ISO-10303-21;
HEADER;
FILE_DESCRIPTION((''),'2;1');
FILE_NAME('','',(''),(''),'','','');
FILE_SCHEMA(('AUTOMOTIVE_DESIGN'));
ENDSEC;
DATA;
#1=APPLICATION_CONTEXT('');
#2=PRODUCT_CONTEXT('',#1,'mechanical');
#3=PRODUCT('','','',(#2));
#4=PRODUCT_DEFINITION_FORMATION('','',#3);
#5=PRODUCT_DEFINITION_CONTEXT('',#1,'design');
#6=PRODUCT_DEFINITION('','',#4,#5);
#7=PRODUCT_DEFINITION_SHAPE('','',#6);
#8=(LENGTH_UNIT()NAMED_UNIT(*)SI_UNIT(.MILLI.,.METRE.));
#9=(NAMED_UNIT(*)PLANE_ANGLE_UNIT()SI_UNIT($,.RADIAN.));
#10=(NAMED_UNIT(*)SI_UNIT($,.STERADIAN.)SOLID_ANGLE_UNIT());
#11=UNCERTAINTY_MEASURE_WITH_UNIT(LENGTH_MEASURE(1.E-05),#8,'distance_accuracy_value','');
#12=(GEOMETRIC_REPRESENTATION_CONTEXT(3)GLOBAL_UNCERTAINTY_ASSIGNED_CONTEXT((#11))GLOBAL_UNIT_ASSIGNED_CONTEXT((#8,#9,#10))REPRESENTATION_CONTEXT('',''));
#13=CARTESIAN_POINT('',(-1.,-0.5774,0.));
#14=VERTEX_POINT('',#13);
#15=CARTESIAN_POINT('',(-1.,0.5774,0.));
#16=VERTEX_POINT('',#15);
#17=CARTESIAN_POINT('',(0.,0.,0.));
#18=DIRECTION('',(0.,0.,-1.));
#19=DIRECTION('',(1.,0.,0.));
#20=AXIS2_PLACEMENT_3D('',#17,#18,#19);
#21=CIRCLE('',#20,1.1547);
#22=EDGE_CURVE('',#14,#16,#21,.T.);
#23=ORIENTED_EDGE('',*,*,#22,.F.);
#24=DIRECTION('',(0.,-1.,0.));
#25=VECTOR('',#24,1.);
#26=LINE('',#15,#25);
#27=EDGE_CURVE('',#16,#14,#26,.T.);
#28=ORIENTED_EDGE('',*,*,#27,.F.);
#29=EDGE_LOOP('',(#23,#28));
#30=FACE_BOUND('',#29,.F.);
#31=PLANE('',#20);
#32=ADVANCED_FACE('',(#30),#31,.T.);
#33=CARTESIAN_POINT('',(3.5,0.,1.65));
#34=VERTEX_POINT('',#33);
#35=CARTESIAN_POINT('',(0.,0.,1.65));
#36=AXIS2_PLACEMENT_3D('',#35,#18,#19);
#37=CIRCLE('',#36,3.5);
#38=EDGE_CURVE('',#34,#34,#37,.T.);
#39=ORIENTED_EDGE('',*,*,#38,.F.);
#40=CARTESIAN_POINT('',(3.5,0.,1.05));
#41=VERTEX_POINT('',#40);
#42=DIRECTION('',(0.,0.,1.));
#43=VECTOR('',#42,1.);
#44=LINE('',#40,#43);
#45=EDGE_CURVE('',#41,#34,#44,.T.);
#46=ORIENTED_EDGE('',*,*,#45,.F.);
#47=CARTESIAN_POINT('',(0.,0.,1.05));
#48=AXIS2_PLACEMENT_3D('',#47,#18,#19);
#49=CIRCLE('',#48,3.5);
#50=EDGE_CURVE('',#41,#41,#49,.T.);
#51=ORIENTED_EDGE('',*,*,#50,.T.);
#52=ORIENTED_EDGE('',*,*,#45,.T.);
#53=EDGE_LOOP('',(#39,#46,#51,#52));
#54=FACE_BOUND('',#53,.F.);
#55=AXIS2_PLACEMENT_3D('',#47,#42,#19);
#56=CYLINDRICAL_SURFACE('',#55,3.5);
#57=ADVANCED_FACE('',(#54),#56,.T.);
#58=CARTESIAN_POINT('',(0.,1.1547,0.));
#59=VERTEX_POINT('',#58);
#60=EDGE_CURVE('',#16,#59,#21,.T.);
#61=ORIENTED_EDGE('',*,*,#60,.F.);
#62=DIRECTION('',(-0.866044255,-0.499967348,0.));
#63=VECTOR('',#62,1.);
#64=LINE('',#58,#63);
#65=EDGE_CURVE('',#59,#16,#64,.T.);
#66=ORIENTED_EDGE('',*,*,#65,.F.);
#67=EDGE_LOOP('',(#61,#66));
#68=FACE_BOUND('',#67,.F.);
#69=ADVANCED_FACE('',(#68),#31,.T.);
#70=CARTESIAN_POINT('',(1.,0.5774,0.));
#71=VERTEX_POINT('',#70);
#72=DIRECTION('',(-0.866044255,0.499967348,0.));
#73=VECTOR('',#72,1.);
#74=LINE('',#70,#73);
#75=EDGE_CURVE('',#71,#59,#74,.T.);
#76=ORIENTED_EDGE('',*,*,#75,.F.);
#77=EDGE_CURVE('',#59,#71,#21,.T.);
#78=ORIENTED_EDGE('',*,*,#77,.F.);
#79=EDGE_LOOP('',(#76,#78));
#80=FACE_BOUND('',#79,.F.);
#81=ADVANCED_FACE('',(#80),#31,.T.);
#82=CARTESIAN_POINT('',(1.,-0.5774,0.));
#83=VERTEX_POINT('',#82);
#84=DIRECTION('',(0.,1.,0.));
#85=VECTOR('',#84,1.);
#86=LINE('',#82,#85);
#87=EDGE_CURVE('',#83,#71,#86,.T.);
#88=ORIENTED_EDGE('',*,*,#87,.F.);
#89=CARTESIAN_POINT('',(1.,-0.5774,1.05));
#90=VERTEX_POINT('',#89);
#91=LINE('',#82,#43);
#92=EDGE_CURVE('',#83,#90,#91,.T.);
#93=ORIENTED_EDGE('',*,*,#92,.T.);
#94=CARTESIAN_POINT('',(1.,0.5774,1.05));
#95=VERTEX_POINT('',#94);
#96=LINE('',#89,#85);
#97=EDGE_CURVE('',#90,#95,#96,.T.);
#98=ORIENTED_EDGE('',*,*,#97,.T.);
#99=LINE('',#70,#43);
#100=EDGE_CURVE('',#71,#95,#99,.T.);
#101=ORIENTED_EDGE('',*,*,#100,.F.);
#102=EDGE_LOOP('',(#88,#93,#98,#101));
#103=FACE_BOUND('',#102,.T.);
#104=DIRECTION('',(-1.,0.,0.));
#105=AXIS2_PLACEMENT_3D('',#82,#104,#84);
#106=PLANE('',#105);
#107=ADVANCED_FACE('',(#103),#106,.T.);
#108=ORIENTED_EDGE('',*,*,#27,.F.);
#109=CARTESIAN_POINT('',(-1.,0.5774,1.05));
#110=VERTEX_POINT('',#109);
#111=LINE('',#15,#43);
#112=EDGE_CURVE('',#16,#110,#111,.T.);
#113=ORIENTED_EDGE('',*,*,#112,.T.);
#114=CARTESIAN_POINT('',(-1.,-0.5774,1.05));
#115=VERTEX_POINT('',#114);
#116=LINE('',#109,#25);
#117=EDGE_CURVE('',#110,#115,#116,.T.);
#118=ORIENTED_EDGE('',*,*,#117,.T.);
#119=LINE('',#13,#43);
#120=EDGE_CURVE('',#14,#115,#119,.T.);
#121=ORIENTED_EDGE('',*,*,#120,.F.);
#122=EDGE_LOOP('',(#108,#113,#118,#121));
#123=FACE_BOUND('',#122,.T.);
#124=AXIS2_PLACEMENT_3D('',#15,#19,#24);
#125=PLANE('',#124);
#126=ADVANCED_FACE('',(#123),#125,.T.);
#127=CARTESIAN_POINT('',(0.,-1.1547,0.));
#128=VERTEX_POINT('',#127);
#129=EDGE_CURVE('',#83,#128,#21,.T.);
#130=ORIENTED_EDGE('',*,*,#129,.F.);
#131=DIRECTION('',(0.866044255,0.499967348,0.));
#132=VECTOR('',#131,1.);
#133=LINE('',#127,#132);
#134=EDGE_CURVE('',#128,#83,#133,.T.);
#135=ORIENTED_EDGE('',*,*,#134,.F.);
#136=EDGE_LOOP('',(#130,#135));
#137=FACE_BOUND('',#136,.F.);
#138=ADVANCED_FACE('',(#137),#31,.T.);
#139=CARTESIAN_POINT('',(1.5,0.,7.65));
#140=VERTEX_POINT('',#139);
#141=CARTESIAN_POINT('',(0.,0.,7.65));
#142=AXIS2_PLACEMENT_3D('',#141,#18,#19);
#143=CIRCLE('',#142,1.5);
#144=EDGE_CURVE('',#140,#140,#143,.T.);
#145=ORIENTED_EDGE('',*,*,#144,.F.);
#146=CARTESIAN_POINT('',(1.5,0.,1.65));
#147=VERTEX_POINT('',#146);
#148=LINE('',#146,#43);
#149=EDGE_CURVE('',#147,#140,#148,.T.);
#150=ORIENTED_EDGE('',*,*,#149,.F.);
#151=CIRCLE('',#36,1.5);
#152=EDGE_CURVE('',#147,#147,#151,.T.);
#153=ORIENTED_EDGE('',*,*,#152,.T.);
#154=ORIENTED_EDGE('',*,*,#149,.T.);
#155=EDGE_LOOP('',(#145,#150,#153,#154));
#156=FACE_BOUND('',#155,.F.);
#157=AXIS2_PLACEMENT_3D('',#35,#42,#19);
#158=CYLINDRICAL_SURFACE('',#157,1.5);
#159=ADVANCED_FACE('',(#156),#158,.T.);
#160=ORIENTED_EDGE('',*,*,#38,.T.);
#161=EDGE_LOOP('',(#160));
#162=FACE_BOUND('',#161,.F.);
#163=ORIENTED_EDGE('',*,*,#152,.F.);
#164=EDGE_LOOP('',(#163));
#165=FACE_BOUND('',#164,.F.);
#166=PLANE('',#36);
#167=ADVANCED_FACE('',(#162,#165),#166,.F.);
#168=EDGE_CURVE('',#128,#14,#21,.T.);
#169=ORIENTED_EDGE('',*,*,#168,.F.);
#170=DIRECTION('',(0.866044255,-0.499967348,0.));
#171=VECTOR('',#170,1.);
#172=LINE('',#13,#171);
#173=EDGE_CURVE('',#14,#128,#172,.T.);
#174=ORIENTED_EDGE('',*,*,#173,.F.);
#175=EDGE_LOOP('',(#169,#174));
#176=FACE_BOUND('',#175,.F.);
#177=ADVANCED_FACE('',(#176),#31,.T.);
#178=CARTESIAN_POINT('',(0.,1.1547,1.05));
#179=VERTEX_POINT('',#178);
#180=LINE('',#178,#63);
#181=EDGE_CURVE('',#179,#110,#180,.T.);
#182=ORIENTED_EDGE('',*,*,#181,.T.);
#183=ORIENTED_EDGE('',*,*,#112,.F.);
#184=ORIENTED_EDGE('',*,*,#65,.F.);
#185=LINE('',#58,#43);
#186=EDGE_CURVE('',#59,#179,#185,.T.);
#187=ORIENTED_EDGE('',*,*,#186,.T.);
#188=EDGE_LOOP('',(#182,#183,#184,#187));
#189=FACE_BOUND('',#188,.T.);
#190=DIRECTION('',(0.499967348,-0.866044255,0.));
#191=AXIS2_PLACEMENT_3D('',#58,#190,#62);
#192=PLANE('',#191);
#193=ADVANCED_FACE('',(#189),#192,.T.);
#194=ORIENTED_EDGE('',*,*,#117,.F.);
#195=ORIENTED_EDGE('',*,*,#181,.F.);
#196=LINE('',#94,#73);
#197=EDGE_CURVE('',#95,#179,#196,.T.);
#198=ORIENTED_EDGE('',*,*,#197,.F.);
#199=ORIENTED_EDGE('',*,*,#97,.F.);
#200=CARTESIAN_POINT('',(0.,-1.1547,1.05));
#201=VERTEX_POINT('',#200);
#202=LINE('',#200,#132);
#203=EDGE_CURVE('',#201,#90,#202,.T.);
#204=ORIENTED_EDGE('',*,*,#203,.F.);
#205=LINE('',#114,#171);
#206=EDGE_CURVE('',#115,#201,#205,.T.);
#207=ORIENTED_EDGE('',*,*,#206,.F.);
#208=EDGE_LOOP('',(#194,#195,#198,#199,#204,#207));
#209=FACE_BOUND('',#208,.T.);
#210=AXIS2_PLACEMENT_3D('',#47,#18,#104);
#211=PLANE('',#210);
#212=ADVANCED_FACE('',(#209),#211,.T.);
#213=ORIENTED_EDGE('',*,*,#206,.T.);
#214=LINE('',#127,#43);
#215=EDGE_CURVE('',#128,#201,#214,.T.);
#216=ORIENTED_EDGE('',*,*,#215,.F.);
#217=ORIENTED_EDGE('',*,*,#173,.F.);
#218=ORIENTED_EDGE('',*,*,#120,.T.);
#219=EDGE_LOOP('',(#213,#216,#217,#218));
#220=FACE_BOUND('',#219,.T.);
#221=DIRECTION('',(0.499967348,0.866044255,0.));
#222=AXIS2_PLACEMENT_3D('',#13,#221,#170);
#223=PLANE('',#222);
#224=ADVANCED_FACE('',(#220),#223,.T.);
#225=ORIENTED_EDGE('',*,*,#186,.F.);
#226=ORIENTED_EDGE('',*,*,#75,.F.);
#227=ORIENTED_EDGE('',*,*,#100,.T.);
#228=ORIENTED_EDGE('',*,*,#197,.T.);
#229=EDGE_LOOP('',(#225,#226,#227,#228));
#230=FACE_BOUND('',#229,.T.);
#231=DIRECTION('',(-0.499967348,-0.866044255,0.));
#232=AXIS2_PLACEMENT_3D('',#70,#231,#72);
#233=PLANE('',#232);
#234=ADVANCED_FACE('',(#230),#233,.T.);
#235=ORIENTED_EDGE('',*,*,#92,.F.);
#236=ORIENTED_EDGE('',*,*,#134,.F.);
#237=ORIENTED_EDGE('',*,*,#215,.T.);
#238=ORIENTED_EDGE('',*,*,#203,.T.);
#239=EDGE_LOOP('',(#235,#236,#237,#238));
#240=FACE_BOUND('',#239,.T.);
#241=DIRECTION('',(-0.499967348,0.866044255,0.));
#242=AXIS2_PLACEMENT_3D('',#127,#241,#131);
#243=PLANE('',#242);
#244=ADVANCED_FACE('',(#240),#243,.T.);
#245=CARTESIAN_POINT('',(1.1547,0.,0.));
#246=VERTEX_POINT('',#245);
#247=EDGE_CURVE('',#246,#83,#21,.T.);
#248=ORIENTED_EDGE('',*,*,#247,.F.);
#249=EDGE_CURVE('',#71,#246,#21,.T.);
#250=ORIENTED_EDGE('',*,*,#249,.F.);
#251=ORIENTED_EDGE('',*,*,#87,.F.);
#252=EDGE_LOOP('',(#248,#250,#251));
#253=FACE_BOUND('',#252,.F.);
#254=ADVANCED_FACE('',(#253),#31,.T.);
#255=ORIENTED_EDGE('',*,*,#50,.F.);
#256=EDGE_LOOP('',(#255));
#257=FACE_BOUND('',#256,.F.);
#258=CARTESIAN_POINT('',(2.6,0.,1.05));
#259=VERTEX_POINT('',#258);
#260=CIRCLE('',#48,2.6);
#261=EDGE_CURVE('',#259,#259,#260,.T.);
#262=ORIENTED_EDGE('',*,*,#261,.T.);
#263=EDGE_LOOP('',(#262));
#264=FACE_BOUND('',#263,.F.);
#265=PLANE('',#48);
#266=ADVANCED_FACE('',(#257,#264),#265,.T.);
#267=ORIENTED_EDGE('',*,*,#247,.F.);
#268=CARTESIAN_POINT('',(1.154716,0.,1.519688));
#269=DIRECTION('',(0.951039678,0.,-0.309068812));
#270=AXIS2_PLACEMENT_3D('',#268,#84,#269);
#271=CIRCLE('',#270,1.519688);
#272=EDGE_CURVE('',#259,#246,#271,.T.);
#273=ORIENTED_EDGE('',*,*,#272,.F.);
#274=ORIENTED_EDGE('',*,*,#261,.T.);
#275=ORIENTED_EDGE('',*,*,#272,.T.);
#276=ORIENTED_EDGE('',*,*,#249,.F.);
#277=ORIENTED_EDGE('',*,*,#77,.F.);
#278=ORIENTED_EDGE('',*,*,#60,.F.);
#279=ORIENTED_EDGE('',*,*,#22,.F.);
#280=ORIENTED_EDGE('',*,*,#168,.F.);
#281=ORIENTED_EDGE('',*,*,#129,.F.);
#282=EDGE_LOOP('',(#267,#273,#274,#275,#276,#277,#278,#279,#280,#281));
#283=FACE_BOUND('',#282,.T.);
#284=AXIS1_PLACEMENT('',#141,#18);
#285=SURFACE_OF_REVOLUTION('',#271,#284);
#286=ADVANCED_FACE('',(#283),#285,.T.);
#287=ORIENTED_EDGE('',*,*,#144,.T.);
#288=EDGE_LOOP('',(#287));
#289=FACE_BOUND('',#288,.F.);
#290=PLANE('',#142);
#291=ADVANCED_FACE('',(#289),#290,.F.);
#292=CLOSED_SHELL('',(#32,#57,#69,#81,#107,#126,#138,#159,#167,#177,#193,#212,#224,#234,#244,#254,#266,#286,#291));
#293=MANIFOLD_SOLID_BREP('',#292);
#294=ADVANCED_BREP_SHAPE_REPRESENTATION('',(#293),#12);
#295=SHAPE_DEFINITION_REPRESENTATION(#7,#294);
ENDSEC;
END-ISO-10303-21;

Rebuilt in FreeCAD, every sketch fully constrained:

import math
import FreeCAD as App
import Part
import Sketcher

V = App.Vector


def add_polygon(sketch, points):
    """Adds a closed chain of lines whose ends are joined by coincident constraints."""
    first, n = sketch.GeometryCount, len(points)
    for a, b in zip(points, points[1:] + points[:1]):
        sketch.addGeometry(Part.LineSegment(App.Vector(*a, 0), App.Vector(*b, 0)), False)
    for i in range(n):
        sketch.addConstraint(Sketcher.Constraint("Coincident", first + i, 2, first + (i + 1) % n, 1))

doc = App.newDocument("Part")
params = doc.addObject("Spreadsheet::Sheet", "Params")
for row, (alias, value) in enumerate([
    ("sketch1_height", "6 mm"),
    ("sketch1_height2", "0.6 mm"),
    ("sketch1_width", "2 mm"),
    ("sketch1_width2", "1.5 mm"),
    ("sketch1_width3", "0.9 mm"),
    ("revolution_angle", "360 deg"),
    ("pocket1_length", "1.05 mm"),
], start=1):
    params.set(f"A{row}", alias)
    params.set(f"B{row}", "=" + value)
    params.setAlias(f"B{row}", alias)

body = doc.addObject("PartDesign::Body", "Body")

# Sketch on XZ plane
sketch1 = body.newObject("Sketcher::SketchObject", "Sketch")
sketch1.AttachmentSupport = (doc.getObject("XZ_Plane"), [""])
sketch1.MapMode = "FlatFace"
sketch1.addGeometry(Part.LineSegment(V(1.2, 0, 0), V(0, 0, 0)), False)
sketch1.addGeometry(Part.LineSegment(V(0, 0, 0), V(0, 7.7, 0)), False)
sketch1.addGeometry(Part.LineSegment(V(0, 7.7, 0), V(1.5, 7.7, 0)), False)
sketch1.addGeometry(Part.LineSegment(V(1.5, 7.7, 0), V(1.5, 1.6, 0)), False)
sketch1.addGeometry(Part.LineSegment(V(1.5, 1.6, 0), V(3.5, 1.6, 0)), False)
sketch1.addGeometry(Part.LineSegment(V(3.5, 1.6, 0), V(3.5, 1.1, 0)), False)
sketch1.addGeometry(Part.LineSegment(V(3.5, 1.1, 0), V(2.6, 1.1, 0)), False)
sketch1.addGeometry(Part.ArcOfCircle(Part.Circle(V(1.2, 1.5, 0), V(0, 0, 1), 1.5), math.radians(-90), math.radians(-18)), False)
sketch1.addConstraint(Sketcher.Constraint("Coincident", 0, 2, 1, 1))
sketch1.addConstraint(Sketcher.Constraint("Coincident", 1, 2, 2, 1))
sketch1.addConstraint(Sketcher.Constraint("Coincident", 2, 2, 3, 1))
sketch1.addConstraint(Sketcher.Constraint("Coincident", 3, 2, 4, 1))
sketch1.addConstraint(Sketcher.Constraint("Coincident", 4, 2, 5, 1))
sketch1.addConstraint(Sketcher.Constraint("Coincident", 5, 2, 6, 1))
sketch1.addConstraint(Sketcher.Constraint("Coincident", 6, 2, 7, 2))
sketch1.addConstraint(Sketcher.Constraint("Tangent", 7, 1, 0, 1))
sketch1.addConstraint(Sketcher.Constraint("Horizontal", 0))
sketch1.addConstraint(Sketcher.Constraint("Vertical", 1))
sketch1.addConstraint(Sketcher.Constraint("Horizontal", 2))
sketch1.addConstraint(Sketcher.Constraint("Vertical", 3))
sketch1.addConstraint(Sketcher.Constraint("Horizontal", 4))
sketch1.addConstraint(Sketcher.Constraint("Vertical", 5))
sketch1.addConstraint(Sketcher.Constraint("Horizontal", 6))
sketch1.addConstraint(Sketcher.Constraint("Coincident", 0, 2, -1, 1))
sketch1.addConstraint(Sketcher.Constraint("DistanceY", 3, 2, 3, 1, 6.0))
sketch1.addConstraint(Sketcher.Constraint("DistanceY", 5, 2, 5, 1, 0.6))
sketch1.addConstraint(Sketcher.Constraint("DistanceX", 4, 1, 4, 2, 2.0))
sketch1.addConstraint(Sketcher.Constraint("DistanceY", -1, 1, 3, 2, 1.65))
sketch1.addConstraint(Sketcher.Constraint("DistanceX", 2, 1, 2, 2, 1.5))
sketch1.addConstraint(Sketcher.Constraint("DistanceX", 6, 2, 6, 1, 0.9))
sketch1.addConstraint(Sketcher.Constraint("Radius", 7, 1.5197))
sketch1.setExpression("Constraints[16]", "Params.sketch1_height")
sketch1.setExpression("Constraints[17]", "Params.sketch1_height2")
sketch1.setExpression("Constraints[18]", "Params.sketch1_width")
sketch1.setExpression("Constraints[20]", "Params.sketch1_width2")
sketch1.setExpression("Constraints[21]", "Params.sketch1_width3")
revolution = body.newObject("PartDesign::Revolution", "Revolution")
revolution.Profile = sketch1
revolution.ReferenceAxis = (sketch1, ["V_Axis"])
revolution.setExpression("Angle", "Params.revolution_angle")

# Sketch on XY plane
sketch2 = body.newObject("Sketcher::SketchObject", "Sketch001")
sketch2.AttachmentSupport = (doc.getObject("XY_Plane"), [""])
sketch2.MapMode = "FlatFace"
add_polygon(sketch2, [(-1, -0.6), (-1, 0.6), (0, 1.2), (1, 0.6), (1, -0.6), (0, -1.2)])  # lines 0-5
sketch2.addConstraint(Sketcher.Constraint("Vertical", 0))
sketch2.addConstraint(Sketcher.Constraint("Vertical", 3))
sketch2.addConstraint(Sketcher.Constraint("Symmetric", 0, 2, 3, 2, -1, 1))
sketch2.addConstraint(Sketcher.Constraint("Symmetric", 1, 2, 4, 2, -1, 1))
sketch2.addConstraint(Sketcher.Constraint("PointOnObject", 1, 2, -2))
sketch2.addConstraint(Sketcher.Constraint("Parallel", 2, 5))
sketch2.addConstraint(Sketcher.Constraint("Horizontal", 0, 2, 2, 2))
sketch2.addConstraint(Sketcher.Constraint("DistanceX", 0, 2, -1, 1, 1.0))
sketch2.addConstraint(Sketcher.Constraint("DistanceY", 0, 1, 0, 2, 1.1548))
sketch2.addConstraint(Sketcher.Constraint("DistanceY", 3, 2, 1, 2, 1.732))
pocket1 = body.newObject("PartDesign::Pocket", "Pocket")
pocket1.Profile = sketch2
pocket1.setExpression("Length", "Params.pocket1_length")
pocket1.Reversed = True

doc.recompute()
